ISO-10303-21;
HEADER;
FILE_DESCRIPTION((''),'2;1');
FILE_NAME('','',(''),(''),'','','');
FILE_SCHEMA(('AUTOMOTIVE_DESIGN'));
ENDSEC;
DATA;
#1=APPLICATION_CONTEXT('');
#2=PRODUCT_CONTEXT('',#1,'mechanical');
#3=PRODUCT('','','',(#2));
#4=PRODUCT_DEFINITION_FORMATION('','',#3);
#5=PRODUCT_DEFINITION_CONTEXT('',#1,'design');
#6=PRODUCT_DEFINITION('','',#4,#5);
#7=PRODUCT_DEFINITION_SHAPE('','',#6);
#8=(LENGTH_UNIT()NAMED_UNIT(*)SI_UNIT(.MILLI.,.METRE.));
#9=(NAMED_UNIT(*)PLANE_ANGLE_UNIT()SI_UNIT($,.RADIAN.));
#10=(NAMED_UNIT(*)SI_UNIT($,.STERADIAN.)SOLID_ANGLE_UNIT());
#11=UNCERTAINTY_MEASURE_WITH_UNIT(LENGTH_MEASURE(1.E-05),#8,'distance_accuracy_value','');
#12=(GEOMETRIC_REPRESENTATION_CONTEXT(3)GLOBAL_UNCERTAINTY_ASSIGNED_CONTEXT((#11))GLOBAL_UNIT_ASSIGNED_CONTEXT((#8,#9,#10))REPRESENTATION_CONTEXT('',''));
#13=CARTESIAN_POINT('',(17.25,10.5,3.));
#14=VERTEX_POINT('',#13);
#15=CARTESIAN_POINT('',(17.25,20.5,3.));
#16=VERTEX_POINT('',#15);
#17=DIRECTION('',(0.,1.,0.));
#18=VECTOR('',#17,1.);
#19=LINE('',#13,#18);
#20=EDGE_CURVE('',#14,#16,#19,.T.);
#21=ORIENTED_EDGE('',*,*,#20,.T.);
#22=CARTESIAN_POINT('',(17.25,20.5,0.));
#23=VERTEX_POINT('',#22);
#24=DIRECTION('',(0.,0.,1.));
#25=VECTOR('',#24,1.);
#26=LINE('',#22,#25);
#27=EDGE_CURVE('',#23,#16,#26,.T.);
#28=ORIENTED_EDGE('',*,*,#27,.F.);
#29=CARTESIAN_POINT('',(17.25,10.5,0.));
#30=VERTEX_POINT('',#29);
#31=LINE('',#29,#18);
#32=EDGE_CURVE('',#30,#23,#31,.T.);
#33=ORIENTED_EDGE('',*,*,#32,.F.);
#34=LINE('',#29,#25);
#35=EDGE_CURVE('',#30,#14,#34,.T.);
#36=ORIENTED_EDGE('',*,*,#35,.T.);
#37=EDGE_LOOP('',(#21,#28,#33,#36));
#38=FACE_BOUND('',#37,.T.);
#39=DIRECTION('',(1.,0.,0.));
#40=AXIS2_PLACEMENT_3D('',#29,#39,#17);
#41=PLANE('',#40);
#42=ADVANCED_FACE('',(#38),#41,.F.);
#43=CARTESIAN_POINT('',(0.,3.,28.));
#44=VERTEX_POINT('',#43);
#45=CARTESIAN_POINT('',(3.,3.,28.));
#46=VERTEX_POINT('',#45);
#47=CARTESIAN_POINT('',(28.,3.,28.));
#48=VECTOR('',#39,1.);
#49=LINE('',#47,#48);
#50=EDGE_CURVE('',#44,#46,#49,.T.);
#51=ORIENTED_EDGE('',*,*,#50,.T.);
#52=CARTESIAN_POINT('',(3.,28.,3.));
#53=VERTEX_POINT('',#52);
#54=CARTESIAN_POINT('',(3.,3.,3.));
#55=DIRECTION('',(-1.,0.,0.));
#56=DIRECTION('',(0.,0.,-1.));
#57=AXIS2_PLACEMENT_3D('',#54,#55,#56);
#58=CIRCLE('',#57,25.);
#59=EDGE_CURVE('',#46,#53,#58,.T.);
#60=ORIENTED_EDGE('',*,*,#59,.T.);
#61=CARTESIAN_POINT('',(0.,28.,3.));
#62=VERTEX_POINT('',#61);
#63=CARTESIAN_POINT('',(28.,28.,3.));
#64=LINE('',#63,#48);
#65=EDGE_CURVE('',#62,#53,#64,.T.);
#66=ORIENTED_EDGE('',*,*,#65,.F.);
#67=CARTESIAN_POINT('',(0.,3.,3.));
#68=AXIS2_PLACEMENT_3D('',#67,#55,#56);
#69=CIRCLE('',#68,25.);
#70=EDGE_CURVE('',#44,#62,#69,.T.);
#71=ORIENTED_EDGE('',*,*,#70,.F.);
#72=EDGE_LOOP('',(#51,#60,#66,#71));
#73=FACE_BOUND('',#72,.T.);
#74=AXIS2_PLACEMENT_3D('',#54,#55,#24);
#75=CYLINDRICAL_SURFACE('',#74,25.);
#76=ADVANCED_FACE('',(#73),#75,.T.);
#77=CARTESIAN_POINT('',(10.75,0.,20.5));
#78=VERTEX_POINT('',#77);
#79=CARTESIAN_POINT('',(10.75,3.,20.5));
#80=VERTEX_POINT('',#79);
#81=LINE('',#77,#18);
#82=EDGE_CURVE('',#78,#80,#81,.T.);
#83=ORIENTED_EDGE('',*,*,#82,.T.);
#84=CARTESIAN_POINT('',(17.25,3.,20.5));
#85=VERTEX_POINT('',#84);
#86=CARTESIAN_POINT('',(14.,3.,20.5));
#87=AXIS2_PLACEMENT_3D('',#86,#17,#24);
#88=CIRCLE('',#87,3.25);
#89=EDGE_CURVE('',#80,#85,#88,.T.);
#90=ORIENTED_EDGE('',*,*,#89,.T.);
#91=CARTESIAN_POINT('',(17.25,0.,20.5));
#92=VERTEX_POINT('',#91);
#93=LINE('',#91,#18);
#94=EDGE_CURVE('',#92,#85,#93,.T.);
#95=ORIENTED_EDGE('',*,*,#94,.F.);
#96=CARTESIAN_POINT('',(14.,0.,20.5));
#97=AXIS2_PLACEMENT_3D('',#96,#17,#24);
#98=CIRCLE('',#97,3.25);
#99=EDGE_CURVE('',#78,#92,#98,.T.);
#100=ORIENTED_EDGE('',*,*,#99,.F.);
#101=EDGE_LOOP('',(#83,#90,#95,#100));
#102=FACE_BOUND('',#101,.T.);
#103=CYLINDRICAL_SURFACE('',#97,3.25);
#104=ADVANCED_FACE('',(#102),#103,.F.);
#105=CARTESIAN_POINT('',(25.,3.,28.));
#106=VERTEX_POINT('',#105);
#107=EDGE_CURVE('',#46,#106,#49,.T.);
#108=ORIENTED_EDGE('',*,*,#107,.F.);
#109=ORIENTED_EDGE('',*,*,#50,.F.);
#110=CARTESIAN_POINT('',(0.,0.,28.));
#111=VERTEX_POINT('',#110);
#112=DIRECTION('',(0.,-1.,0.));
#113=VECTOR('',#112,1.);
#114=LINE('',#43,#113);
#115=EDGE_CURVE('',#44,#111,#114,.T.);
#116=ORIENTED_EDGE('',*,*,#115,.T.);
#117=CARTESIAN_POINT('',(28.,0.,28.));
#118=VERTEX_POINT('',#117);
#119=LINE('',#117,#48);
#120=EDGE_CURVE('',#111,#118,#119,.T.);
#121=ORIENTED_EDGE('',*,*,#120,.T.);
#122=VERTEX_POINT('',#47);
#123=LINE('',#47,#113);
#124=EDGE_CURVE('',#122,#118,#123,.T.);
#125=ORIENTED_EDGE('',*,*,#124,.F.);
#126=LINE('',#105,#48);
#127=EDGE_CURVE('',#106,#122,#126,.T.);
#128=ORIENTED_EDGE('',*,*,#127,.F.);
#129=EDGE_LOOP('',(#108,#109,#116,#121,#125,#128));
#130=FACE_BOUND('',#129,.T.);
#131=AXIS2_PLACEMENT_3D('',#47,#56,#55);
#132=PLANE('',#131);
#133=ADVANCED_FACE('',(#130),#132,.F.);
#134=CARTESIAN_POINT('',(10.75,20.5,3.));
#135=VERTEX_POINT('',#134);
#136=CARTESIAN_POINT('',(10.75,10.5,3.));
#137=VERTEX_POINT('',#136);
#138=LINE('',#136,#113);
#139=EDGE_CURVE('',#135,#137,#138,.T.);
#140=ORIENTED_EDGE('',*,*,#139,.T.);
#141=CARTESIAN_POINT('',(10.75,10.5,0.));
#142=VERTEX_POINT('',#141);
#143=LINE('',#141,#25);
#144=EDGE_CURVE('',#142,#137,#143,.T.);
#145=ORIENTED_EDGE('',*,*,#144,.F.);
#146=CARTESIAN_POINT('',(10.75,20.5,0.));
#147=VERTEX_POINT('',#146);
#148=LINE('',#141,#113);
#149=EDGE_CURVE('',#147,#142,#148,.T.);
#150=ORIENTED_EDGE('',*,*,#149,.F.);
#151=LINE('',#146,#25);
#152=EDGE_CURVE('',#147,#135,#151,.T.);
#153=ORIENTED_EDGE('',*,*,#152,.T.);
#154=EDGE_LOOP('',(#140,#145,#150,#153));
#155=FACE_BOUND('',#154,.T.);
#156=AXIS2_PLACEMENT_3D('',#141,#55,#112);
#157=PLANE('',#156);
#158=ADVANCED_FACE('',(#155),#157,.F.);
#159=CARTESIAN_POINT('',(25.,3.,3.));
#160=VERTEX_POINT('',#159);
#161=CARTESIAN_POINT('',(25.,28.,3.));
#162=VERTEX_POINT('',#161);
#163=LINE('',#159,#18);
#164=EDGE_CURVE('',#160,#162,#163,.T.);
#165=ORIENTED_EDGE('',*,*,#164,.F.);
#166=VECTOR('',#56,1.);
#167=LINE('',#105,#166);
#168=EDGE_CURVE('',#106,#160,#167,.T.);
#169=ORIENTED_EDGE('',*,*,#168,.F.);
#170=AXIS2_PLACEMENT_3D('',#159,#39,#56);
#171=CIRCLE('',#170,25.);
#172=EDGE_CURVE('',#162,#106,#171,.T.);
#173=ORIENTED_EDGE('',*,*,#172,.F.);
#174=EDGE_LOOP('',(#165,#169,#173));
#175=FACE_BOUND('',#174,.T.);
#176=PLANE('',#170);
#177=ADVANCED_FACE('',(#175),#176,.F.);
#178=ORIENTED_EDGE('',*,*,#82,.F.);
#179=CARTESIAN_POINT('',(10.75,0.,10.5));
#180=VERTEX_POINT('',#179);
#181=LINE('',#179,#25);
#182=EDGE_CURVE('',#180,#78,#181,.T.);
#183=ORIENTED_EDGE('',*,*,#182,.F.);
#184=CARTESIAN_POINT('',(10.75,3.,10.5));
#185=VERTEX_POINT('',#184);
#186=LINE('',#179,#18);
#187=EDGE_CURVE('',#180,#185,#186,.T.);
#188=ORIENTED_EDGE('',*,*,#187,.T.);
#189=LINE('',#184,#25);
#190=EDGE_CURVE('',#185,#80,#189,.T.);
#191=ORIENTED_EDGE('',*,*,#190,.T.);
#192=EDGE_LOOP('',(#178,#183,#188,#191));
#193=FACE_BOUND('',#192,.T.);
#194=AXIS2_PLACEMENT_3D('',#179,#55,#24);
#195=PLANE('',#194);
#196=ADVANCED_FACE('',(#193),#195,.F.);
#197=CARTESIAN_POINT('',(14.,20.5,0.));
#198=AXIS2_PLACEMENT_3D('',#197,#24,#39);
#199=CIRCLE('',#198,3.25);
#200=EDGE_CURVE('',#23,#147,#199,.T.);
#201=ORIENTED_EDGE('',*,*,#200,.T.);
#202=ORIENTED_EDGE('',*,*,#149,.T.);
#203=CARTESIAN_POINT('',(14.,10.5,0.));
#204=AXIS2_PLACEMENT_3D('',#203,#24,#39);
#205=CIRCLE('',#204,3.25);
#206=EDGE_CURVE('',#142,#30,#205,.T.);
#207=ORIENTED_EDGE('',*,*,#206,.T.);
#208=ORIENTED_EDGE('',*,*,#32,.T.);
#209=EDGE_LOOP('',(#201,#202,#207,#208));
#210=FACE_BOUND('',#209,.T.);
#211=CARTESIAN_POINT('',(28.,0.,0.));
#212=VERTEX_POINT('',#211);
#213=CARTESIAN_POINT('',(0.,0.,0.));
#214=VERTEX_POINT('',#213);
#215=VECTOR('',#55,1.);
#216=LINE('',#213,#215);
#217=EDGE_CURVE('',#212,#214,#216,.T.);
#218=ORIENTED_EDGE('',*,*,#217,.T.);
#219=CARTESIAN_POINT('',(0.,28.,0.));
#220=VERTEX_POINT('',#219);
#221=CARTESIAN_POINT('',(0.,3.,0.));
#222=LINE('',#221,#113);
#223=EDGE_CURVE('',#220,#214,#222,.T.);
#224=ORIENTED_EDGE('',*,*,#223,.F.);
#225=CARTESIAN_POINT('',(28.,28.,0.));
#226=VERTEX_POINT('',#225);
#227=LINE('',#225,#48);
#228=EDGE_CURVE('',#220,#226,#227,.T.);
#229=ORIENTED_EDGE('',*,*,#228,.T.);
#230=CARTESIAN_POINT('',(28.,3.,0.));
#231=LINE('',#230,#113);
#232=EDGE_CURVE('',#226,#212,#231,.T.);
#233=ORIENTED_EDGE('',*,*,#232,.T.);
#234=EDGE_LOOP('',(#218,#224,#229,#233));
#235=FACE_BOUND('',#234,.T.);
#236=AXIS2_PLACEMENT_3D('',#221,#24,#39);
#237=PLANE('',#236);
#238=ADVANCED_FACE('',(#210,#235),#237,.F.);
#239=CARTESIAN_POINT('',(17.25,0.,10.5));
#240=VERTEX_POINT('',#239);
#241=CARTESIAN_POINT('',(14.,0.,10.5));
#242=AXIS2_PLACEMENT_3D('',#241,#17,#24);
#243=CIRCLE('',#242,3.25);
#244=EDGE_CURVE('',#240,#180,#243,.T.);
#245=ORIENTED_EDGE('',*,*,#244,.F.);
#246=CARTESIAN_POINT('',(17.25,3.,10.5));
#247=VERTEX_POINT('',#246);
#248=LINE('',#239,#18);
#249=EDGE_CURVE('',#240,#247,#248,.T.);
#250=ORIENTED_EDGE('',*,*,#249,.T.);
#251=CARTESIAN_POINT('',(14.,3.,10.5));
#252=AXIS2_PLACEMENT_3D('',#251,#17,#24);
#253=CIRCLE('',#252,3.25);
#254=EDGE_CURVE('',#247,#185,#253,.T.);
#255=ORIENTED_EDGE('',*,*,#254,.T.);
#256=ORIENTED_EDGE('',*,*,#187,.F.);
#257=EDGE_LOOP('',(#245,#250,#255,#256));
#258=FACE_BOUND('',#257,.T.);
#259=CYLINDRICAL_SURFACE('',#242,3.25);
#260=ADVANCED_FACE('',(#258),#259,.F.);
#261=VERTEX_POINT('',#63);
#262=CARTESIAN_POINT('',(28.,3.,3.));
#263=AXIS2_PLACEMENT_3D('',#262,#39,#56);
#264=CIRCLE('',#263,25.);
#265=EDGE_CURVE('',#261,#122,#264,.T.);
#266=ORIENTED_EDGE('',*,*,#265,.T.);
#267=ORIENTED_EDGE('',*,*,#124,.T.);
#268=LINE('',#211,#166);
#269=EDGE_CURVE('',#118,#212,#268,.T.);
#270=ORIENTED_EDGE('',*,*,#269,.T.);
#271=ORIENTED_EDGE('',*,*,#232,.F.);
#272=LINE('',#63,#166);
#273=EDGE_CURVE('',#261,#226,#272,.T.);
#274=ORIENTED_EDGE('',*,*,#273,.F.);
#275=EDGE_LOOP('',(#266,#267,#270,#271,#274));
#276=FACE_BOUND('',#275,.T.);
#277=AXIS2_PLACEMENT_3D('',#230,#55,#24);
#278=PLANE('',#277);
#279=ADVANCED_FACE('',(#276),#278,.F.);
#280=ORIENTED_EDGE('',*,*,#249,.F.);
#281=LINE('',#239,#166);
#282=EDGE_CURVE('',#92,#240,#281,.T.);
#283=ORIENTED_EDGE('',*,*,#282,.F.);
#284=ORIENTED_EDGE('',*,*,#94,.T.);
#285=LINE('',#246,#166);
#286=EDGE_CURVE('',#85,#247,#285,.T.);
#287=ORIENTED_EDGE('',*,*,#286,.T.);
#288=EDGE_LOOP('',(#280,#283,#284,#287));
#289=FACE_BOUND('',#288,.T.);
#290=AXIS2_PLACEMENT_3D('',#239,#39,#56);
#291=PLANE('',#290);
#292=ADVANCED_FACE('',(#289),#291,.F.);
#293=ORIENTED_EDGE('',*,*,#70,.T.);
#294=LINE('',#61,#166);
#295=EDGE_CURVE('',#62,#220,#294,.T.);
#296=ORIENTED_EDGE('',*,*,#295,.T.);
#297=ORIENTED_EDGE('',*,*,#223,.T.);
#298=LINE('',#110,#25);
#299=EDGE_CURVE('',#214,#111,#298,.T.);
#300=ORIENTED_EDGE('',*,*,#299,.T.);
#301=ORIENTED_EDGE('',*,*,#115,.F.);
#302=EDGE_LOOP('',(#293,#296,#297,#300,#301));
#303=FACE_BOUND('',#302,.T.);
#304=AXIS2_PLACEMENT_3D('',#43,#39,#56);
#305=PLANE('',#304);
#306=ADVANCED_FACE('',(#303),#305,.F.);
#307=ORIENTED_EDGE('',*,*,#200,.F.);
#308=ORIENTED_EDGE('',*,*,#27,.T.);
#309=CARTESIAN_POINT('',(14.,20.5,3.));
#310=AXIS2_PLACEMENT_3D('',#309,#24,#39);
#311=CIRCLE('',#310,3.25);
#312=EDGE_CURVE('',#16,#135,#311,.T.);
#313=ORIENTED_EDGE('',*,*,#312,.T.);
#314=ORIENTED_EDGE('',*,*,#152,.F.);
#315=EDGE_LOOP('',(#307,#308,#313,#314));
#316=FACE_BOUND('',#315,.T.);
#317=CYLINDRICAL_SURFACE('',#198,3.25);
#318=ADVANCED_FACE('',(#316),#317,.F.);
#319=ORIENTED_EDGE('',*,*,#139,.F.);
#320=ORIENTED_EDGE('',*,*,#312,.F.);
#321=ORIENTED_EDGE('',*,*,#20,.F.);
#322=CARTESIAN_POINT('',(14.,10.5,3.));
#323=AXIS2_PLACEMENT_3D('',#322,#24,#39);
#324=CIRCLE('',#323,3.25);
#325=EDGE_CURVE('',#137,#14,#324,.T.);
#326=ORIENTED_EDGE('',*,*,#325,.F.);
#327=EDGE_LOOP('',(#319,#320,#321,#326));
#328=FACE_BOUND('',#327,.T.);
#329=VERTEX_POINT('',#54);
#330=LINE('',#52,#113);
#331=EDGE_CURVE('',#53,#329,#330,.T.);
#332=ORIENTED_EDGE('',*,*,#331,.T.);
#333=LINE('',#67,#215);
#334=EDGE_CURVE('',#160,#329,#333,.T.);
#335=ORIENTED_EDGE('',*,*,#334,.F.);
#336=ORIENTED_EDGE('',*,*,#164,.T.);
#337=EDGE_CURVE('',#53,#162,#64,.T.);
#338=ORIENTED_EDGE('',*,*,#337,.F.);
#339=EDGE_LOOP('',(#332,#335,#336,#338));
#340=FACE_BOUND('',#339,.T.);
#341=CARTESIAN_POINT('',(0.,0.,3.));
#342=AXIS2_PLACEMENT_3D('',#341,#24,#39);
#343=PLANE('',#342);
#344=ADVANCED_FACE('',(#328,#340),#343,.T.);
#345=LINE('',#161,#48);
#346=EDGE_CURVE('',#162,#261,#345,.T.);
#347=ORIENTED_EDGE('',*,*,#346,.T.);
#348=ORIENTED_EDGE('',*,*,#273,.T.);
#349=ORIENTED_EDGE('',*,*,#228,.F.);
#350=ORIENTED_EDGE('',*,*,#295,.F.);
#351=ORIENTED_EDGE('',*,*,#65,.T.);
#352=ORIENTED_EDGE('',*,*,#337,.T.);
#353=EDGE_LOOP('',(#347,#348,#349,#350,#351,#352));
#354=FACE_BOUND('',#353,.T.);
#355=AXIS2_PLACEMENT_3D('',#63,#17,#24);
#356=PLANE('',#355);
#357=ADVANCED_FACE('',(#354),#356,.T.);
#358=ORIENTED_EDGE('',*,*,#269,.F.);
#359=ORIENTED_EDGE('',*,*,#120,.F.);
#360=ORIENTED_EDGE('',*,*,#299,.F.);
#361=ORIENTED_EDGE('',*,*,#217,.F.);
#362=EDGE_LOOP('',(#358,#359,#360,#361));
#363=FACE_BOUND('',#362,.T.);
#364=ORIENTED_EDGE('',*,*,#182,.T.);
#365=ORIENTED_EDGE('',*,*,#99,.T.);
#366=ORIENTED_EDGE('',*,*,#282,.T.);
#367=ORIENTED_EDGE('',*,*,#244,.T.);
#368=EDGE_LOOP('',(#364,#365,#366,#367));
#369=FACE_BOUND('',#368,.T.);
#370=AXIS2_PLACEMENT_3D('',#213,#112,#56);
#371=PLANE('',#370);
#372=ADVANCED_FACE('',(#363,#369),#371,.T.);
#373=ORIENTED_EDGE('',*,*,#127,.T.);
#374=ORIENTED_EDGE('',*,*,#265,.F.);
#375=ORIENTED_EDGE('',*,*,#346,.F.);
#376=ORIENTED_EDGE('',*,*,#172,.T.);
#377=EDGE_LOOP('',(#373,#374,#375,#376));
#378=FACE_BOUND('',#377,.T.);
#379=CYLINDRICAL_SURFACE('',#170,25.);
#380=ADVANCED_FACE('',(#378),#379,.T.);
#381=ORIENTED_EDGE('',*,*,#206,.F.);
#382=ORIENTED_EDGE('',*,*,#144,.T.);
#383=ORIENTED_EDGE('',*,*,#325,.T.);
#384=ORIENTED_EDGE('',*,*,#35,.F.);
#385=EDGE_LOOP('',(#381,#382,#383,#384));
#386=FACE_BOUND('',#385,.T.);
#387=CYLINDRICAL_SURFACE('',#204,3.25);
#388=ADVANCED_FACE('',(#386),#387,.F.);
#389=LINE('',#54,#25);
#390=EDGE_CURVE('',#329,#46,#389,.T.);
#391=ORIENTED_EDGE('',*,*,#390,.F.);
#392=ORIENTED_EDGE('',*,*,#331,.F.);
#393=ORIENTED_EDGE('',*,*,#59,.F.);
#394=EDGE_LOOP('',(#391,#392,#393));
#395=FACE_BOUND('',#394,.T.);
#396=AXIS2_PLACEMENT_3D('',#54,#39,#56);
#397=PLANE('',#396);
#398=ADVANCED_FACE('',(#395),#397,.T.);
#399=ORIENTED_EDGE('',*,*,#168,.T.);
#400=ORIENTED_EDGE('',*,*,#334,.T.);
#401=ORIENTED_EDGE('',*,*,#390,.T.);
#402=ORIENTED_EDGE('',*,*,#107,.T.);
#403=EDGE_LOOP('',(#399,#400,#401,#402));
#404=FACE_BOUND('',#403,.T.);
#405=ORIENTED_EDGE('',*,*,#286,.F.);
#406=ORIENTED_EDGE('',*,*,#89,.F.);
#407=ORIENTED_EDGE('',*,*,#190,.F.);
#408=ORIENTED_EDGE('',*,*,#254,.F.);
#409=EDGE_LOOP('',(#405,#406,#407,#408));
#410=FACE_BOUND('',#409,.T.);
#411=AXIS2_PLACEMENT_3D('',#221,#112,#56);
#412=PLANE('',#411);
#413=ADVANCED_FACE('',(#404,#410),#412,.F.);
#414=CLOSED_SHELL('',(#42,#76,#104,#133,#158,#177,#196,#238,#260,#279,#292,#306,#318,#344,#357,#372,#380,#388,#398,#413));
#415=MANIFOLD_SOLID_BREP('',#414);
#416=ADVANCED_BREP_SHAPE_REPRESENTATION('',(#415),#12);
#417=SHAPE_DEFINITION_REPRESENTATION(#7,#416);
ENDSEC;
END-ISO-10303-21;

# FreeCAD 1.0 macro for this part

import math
import FreeCAD as App
import Part
import Sketcher

V = App.Vector


def add_polygon(sketch, points):
    """Adds a closed chain of lines whose ends are joined by coincident constraints."""
    first, n = sketch.GeometryCount, len(points)
    for a, b in zip(points, points[1:] + points[:1]):
        sketch.addGeometry(Part.LineSegment(App.Vector(*a, 0), App.Vector(*b, 0)), False)
    for i in range(n):
        sketch.addConstraint(Sketcher.Constraint("Coincident", first + i, 2, first + (i + 1) % n, 1))

doc = App.newDocument("Part")
body = doc.addObject("PartDesign::Body", "Body")

# Sketch on XZ plane
sketch1 = doc.addObject("Sketcher::SketchObject", "Sketch")
body.addObject(sketch1)
sketch1.AttachmentSupport = (doc.XZ_Plane, [""])
sketch1.MapMode = "FlatFace"
add_polygon(sketch1, [(0, 0), (0, 28), (28, 28), (28, 0)])  # lines 0-3
sketch1.addConstraint(Sketcher.Constraint("Vertical", 0))
sketch1.addConstraint(Sketcher.Constraint("Horizontal", 1))
sketch1.addConstraint(Sketcher.Constraint("Vertical", 2))
sketch1.addConstraint(Sketcher.Constraint("Horizontal", 3))
sketch1.addConstraint(Sketcher.Constraint("Coincident", 3, 2, -1, 1))
sketch1.addConstraint(Sketcher.Constraint("Equal", 3, 0))
sketch1.addConstraint(Sketcher.Constraint("DistanceX", 1, 1, 1, 2, 28.0))
pad1 = doc.addObject("PartDesign::Pad", "Pad")
body.addObject(pad1)
pad1.Profile = sketch1
pad1.Length = 3
pad1.Reversed = True

# Sketch on XY plane
sketch2 = doc.addObject("Sketcher::SketchObject", "Sketch001")
body.addObject(sketch2)
sketch2.AttachmentSupport = (doc.XY_Plane, [""])
sketch2.MapMode = "FlatFace"
add_polygon(sketch2, [(28, 28), (28, 3), (0, 3), (0, 28)])  # lines 0-3
sketch2.addConstraint(Sketcher.Constraint("Vertical", 0))
sketch2.addConstraint(Sketcher.Constraint("Horizontal", 1))
sketch2.addConstraint(Sketcher.Constraint("Vertical", 2))
sketch2.addConstraint(Sketcher.Constraint("Horizontal", 3))
sketch2.addConstraint(Sketcher.Constraint("PointOnObject", 1, 2, -2))
sketch2.addConstraint(Sketcher.Constraint("DistanceX", 1, 2, 1, 1, 28.0))
sketch2.addConstraint(Sketcher.Constraint("DistanceY", 0, 2, 0, 1, 25.0))
sketch2.addConstraint(Sketcher.Constraint("DistanceY", -1, 1, 0, 2, 3.0))
pad2 = doc.addObject("PartDesign::Pad", "Pad001")
body.addObject(pad2)
pad2.Profile = sketch2
pad2.Length = 3

# Sketch on YZ plane
sketch3 = doc.addObject("Sketcher::SketchObject", "Sketch002")
body.addObject(sketch3)
sketch3.AttachmentSupport = (doc.YZ_Plane, [""])
sketch3.MapMode = "FlatFace"
sketch3.addGeometry(Part.LineSegment(V(28, 3, 0), V(3, 3, 0)), False)
sketch3.addGeometry(Part.LineSegment(V(3, 3, 0), V(3, 28, 0)), False)
sketch3.addGeometry(Part.ArcOfCircle(Part.Circle(V(3, 3, 0), V(0, 0, 1), 25), math.radians(0), math.radians(90)), False)
sketch3.addConstraint(Sketcher.Constraint("Coincident", 0, 2, 1, 1))
sketch3.addConstraint(Sketcher.Constraint("Coincident", 1, 2, 2, 2))
sketch3.addConstraint(Sketcher.Constraint("Coincident", 2, 1, 0, 1))
sketch3.addConstraint(Sketcher.Constraint("Horizontal", 0))
sketch3.addConstraint(Sketcher.Constraint("Vertical", 1))
sketch3.addConstraint(Sketcher.Constraint("Coincident", 0, 2, 2, 3))
sketch3.addConstraint(Sketcher.Constraint("Radius", 2, 25.0))
sketch3.addConstraint(Sketcher.Constraint("DistanceX", -1, 1, 2, 3, 3.0))
sketch3.addConstraint(Sketcher.Constraint("DistanceY", -1, 1, 2, 3, 3.0))
pad3 = doc.addObject("PartDesign::Pad", "Pad002")
body.addObject(pad3)
pad3.Profile = sketch3
pad3.Length = 3

# Sketch on YZ plane
sketch4 = doc.addObject("Sketcher::SketchObject", "Sketch003")
body.addObject(sketch4)
sketch4.AttachmentSupport = (doc.YZ_Plane, [""])
sketch4.MapMode = "FlatFace"
sketch4.AttachmentOffset = App.Placement(V(0, 0, 25), App.Rotation())
sketch4.addGeometry(Part.LineSegment(V(3, 28, 0), V(3, 3, 0)), False)
sketch4.addGeometry(Part.LineSegment(V(3, 3, 0), V(28, 3, 0)), False)
sketch4.addGeometry(Part.ArcOfCircle(Part.Circle(V(3, 3, 0), V(0, 0, 1), 25), math.radians(0), math.radians(90)), False)
sketch4.addConstraint(Sketcher.Constraint("Coincident", 0, 2, 1, 1))
sketch4.addConstraint(Sketcher.Constraint("Coincident", 1, 2, 2, 1))
sketch4.addConstraint(Sketcher.Constraint("Coincident", 2, 2, 0, 1))
sketch4.addConstraint(Sketcher.Constraint("Vertical", 0))
sketch4.addConstraint(Sketcher.Constraint("Horizontal", 1))
sketch4.addConstraint(Sketcher.Constraint("Coincident", 0, 2, 2, 3))
sketch4.addConstraint(Sketcher.Constraint("Radius", 2, 25.0))
sketch4.addConstraint(Sketcher.Constraint("DistanceX", -1, 1, 2, 3, 3.0))
sketch4.addConstraint(Sketcher.Constraint("DistanceY", -1, 1, 2, 3, 3.0))
pad4 = doc.addObject("PartDesign::Pad", "Pad003")
body.addObject(pad4)
pad4.Profile = sketch4
pad4.Length = 3

# Sketch on XY plane
sketch5 = doc.addObject("Sketcher::SketchObject", "Sketch004")
body.addObject(sketch5)
sketch5.AttachmentSupport = (doc.XY_Plane, [""])
sketch5.MapMode = "FlatFace"
sketch5.AttachmentOffset = App.Placement(V(0, 0, 3), App.Rotation())
sketch5.addGeometry(Part.LineSegment(V(10.8, 20.5, 0), V(10.8, 10.5, 0)), False)
sketch5.addGeometry(Part.ArcOfCircle(Part.Circle(V(14, 10.5, 0), V(0, 0, 1), 3.2), math.radians(180), math.radians(360)), False)
sketch5.addGeometry(Part.LineSegment(V(17.2, 10.5, 0), V(17.2, 20.5, 0)), False)
sketch5.addGeometry(Part.ArcOfCircle(Part.Circle(V(14, 20.5, 0), V(0, 0, 1), 3.2), math.radians(0), math.radians(180)), False)
sketch5.addConstraint(Sketcher.Constraint("Tangent", 0, 2, 1, 1))
sketch5.addConstraint(Sketcher.Constraint("Tangent", 1, 2, 2, 1))
sketch5.addConstraint(Sketcher.Constraint("Tangent", 2, 2, 3, 1))
sketch5.addConstraint(Sketcher.Constraint("Tangent", 3, 2, 0, 1))
sketch5.addConstraint(Sketcher.Constraint("Vertical", 0))
sketch5.addConstraint(Sketcher.Constraint("Vertical", 2))
sketch5.addConstraint(Sketcher.Constraint("DistanceY", 0, 2, 0, 1, 10.0))
sketch5.addConstraint(Sketcher.Constraint("Radius", 1, 3.25))
sketch5.addConstraint(Sketcher.Constraint("DistanceX", -1, 1, 1, 3, 14.0))
sketch5.addConstraint(Sketcher.Constraint("DistanceY", -1, 1, 1, 3, 10.5))
pocket1 = doc.addObject("PartDesign::Pocket", "Pocket")
body.addObject(pocket1)
pocket1.Profile = sketch5
pocket1.Length = 3

# Sketch on XZ plane
sketch6 = doc.addObject("Sketcher::SketchObject", "Sketch005")
body.addObject(sketch6)
sketch6.AttachmentSupport = (doc.XZ_Plane, [""])
sketch6.MapMode = "FlatFace"
sketch6.AttachmentOffset = App.Placement(V(0, 0, -3), App.Rotation())
sketch6.addGeometry(Part.LineSegment(V(17.2, 20.5, 0), V(17.2, 10.5, 0)), False)
sketch6.addGeometry(Part.ArcOfCircle(Part.Circle(V(14, 10.5, 0), V(0, 0, 1), 3.2), math.radians(180), math.radians(360)), False)
sketch6.addGeometry(Part.LineSegment(V(10.8, 10.5, 0), V(10.8, 20.5, 0)), False)
sketch6.addGeometry(Part.ArcOfCircle(Part.Circle(V(14, 20.5, 0), V(0, 0, 1), 3.2), math.radians(0), math.radians(180)), False)
sketch6.addConstraint(Sketcher.Constraint("Tangent", 0, 2, 1, 2))
sketch6.addConstraint(Sketcher.Constraint("Tangent", 1, 1, 2, 1))
sketch6.addConstraint(Sketcher.Constraint("Tangent", 2, 2, 3, 2))
sketch6.addConstraint(Sketcher.Constraint("Tangent", 3, 1, 0, 1))
sketch6.addConstraint(Sketcher.Constraint("Vertical", 0))
sketch6.addConstraint(Sketcher.Constraint("Vertical", 2))
sketch6.addConstraint(Sketcher.Constraint("DistanceY", 0, 2, 0, 1, 10.0))
sketch6.addConstraint(Sketcher.Constraint("Radius", 1, 3.25))
sketch6.addConstraint(Sketcher.Constraint("DistanceX", -1, 1, 1, 3, 14.0))
sketch6.addConstraint(Sketcher.Constraint("DistanceY", -1, 1, 1, 3, 10.5))
pocket2 = doc.addObject("PartDesign::Pocket", "Pocket001")
body.addObject(pocket2)
pocket2.Profile = sketch6
pocket2.Length = 3
pocket2.Reversed = True

doc.recompute()
